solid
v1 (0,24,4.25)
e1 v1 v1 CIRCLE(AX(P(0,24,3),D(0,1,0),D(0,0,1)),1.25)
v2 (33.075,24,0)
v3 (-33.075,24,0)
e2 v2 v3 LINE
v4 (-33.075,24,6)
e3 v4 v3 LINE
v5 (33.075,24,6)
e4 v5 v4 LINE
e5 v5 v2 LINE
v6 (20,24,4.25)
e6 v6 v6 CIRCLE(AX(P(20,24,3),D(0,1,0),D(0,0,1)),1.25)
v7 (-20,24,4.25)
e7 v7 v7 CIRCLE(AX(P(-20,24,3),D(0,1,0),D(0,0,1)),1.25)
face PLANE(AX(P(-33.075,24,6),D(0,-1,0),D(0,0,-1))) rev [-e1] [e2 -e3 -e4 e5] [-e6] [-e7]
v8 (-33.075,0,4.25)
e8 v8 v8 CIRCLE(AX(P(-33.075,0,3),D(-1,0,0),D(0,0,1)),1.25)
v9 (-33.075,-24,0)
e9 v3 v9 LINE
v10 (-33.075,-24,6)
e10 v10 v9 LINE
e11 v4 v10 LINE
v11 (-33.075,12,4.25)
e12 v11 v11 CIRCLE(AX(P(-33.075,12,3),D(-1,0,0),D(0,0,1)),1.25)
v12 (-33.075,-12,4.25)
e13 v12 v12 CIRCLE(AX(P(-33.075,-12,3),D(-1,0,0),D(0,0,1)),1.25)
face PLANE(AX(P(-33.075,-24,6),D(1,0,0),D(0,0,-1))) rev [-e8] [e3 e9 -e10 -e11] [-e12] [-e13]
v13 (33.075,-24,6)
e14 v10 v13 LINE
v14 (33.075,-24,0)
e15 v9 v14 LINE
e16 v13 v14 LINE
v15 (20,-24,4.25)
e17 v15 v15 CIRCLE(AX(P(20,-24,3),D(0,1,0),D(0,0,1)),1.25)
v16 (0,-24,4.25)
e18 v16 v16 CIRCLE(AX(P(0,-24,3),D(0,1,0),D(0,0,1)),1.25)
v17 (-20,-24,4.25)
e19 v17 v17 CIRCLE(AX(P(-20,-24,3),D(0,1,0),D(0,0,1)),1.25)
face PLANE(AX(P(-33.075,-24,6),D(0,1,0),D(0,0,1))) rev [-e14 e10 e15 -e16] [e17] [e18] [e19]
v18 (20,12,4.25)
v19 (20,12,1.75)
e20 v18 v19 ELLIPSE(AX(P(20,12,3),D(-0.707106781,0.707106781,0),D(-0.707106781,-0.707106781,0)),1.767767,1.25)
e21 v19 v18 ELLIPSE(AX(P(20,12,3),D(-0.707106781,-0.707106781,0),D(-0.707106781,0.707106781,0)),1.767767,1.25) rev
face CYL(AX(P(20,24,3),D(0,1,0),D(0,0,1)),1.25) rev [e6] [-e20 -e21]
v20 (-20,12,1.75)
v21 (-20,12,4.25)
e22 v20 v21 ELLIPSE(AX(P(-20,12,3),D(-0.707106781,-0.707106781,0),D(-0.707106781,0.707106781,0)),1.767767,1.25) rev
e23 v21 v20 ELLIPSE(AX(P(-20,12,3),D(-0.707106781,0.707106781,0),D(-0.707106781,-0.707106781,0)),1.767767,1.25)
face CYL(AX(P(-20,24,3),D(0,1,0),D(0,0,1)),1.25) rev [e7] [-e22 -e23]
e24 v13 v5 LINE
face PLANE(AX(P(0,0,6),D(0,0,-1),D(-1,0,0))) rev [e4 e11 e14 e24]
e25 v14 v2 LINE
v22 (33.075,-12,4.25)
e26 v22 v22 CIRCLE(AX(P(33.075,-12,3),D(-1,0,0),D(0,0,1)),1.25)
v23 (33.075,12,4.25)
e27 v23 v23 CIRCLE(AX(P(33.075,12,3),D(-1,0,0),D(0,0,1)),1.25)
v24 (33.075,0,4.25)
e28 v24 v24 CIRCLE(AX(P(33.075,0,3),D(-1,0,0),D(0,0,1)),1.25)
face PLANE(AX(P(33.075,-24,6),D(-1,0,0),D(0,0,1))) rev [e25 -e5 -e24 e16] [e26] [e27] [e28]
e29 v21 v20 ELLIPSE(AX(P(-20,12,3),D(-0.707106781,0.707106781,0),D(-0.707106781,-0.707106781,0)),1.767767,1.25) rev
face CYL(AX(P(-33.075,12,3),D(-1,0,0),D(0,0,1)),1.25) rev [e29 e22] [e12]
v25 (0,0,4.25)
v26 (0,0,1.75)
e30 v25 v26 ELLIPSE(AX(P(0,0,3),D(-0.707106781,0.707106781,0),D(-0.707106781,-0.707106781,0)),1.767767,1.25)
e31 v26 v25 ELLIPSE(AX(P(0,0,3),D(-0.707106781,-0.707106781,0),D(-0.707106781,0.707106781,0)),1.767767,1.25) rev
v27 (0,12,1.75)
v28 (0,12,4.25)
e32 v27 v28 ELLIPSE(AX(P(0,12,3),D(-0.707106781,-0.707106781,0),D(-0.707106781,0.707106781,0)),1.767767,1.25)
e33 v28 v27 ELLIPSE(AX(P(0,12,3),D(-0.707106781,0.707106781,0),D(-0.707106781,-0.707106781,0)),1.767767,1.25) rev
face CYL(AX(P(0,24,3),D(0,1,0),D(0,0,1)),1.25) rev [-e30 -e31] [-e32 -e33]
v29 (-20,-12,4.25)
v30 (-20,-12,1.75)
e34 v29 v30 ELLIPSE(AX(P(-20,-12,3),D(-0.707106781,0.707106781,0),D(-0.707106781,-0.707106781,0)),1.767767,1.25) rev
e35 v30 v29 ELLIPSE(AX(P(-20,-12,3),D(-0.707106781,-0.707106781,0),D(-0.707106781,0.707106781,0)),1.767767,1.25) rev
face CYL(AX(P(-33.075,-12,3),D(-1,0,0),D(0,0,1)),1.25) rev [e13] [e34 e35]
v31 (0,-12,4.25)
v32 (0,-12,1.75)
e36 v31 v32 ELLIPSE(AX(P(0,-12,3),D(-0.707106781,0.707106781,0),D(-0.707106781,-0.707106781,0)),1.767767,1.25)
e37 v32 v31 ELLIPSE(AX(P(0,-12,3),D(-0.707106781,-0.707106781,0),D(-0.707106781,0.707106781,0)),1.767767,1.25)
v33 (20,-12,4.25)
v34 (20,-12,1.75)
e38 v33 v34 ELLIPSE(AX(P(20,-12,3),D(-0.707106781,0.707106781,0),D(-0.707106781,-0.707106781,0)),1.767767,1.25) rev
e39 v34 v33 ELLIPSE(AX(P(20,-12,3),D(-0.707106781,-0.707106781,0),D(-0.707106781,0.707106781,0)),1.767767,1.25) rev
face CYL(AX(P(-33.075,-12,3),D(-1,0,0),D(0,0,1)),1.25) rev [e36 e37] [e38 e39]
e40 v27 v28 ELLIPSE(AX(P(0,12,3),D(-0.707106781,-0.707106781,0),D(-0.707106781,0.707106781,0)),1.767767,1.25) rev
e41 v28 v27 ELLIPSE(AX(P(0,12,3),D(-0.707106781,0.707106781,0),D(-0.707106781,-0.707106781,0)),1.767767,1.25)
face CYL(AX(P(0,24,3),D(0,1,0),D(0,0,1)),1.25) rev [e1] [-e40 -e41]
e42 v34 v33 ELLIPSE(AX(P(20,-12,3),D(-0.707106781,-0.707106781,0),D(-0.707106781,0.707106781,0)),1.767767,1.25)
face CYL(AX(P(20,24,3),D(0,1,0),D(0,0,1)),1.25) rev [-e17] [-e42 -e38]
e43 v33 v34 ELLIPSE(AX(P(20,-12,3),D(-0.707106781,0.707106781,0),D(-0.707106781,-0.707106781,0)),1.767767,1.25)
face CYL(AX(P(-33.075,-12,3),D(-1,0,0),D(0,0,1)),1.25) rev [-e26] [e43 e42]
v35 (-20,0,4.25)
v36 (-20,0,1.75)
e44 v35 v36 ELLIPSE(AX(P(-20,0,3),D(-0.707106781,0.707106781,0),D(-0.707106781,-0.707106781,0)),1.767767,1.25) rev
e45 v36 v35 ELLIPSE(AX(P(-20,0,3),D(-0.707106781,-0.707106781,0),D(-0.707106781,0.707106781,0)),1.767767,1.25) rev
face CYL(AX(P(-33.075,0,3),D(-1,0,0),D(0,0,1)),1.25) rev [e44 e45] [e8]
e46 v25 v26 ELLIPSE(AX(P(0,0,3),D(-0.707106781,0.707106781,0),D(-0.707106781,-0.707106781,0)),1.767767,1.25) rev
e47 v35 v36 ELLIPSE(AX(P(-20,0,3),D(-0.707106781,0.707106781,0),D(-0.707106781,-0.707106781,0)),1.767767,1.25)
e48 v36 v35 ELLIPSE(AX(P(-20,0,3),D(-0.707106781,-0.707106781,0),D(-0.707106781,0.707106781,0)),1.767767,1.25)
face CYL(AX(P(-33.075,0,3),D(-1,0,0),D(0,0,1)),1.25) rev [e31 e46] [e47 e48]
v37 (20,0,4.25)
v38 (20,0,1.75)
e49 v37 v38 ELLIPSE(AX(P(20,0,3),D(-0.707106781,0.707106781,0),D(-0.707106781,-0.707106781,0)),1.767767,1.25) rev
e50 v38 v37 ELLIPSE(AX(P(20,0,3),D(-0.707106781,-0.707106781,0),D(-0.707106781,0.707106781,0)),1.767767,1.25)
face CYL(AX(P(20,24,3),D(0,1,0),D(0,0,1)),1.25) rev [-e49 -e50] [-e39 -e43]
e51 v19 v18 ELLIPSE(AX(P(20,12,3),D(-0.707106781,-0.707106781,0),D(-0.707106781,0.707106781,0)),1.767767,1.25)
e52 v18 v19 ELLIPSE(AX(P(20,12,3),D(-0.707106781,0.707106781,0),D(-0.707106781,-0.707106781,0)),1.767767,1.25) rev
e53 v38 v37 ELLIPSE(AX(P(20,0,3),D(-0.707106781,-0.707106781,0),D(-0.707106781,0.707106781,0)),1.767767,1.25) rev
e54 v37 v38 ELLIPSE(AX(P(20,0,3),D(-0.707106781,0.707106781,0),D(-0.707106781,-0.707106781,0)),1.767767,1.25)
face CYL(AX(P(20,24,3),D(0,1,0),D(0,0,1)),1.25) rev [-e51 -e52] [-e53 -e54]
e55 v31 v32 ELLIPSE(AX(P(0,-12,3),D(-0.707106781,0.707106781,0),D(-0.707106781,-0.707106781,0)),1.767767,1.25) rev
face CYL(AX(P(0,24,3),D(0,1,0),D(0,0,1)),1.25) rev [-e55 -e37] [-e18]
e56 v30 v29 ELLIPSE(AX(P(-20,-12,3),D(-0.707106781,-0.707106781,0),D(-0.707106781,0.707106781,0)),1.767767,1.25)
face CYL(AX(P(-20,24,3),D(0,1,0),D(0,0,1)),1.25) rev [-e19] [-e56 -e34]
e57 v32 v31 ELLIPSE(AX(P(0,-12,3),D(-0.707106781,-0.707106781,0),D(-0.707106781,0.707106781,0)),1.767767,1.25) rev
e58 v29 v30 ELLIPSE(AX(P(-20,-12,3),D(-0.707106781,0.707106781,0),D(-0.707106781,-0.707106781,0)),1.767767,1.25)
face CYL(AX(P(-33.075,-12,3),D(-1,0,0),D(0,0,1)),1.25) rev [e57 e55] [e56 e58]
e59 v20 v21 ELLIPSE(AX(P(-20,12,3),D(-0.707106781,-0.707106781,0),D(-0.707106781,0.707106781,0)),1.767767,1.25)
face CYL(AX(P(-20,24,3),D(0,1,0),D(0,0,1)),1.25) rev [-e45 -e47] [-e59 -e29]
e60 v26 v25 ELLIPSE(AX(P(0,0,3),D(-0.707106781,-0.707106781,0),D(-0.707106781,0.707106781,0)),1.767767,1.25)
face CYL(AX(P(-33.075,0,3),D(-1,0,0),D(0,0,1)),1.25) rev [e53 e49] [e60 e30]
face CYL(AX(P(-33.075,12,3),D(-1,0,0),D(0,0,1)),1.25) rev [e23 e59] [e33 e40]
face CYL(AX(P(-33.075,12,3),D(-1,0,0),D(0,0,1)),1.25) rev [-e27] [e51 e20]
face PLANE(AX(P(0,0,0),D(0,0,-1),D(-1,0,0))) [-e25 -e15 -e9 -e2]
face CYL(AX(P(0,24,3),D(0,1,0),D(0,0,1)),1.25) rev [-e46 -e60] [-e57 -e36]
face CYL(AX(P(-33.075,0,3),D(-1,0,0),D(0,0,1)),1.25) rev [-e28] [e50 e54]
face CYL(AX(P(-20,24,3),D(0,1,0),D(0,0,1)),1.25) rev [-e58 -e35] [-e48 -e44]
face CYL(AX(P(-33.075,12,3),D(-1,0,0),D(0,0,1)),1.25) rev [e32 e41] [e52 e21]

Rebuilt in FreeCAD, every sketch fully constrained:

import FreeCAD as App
import Part
import Sketcher
Q = App.Units.Quantity

doc = App.newDocument("Part")
params = doc.addObject("Spreadsheet::Sheet", "Params")
for row, (alias, value) in enumerate([
    ("sketch1_height", "48 mm"),
    ("sketch1_width", "66.15 mm"),
    ("pad1_length", "6 mm"),
    ("sketch2_diameter", "2.5 mm"),
    ("hole_diameter", "2.5 mm"),
    ("sketch3_diameter", "2.5 mm"),
    ("hole2_diameter", "2.5 mm"),
], start=1):
    params.set(f"A{row}", alias)
    params.set(f"B{row}", "=" + value)
    params.setAlias(f"B{row}", alias)

body = doc.addObject("PartDesign::Body", "Body")

# Sketch on XY plane
sketch1 = body.newObject("Sketcher::SketchObject", "Sketch")
sketch1.AttachmentSupport = (doc.getObject("XY_Plane"), [""])
sketch1.MapMode = "FlatFace"
sketch1.addGeometry([
    Part.LineSegment(App.Vector(-33.075, 24, 0), App.Vector(-33.075, -24, 0)),
    Part.LineSegment(App.Vector(-33.075, -24, 0), App.Vector(33.075, -24, 0)),
    Part.LineSegment(App.Vector(33.075, -24, 0), App.Vector(33.075, 24, 0)),
    Part.LineSegment(App.Vector(33.075, 24, 0), App.Vector(-33.075, 24, 0)),
], False)
sketch1.addConstraint([
    Sketcher.Constraint("Coincident", 0, 2, 1, 1),
    Sketcher.Constraint("Coincident", 1, 2, 2, 1),
    Sketcher.Constraint("Coincident", 2, 2, 3, 1),
    Sketcher.Constraint("Coincident", 3, 2, 0, 1),
    Sketcher.Constraint("Vertical", 0),
    Sketcher.Constraint("Horizontal", 1),
    Sketcher.Constraint("Vertical", 2),
    Sketcher.Constraint("Horizontal", 3),
    Sketcher.Constraint("Symmetric", 0, 2, 2, 2, -1, 1),
    Sketcher.Constraint("DistanceY", 0, 2, 0, 1, Q("48 mm")),
    Sketcher.Constraint("DistanceX", 1, 1, 1, 2, Q("66.15 mm")),
])
sketch1.setExpression("Constraints[9]", "Params.sketch1_height")
sketch1.setExpression("Constraints[10]", "Params.sketch1_width")
pad1 = body.newObject("PartDesign::Pad", "Pad")
pad1.Profile = sketch1
pad1.setExpression("Length", "Params.pad1_length")

# Sketch on YZ plane
sketch2 = body.newObject("Sketcher::SketchObject", "Sketch001")
sketch2.AttachmentSupport = (doc.getObject("YZ_Plane"), [""])
sketch2.MapMode = "FlatFace"
sketch2.AttachmentOffset = App.Placement(App.Vector(0, 0, -33.075), App.Rotation())
sketch2.addGeometry([
    Part.Circle(App.Vector(12, 3, 0), App.Vector(0, 0, 1), 1.25),
    Part.Circle(App.Vector(-12, 3, 0), App.Vector(0, 0, 1), 1.25),
    Part.Circle(App.Vector(0, 3, 0), App.Vector(0, 0, 1), 1.25),
], False)
sketch2.addConstraint([
    Sketcher.Constraint("Equal", 0, 1),
    Sketcher.Constraint("Equal", 1, 2),
    Sketcher.Constraint("Symmetric", 0, 3, 1, 3, -2),
    Sketcher.Constraint("PointOnObject", 2, 3, -2),
    Sketcher.Constraint("Horizontal", 1, 3, 2, 3),
    Sketcher.Constraint("Diameter", 0, Q("2.5 mm")),
    Sketcher.Constraint("DistanceX", -1, 1, 0, 3, Q("12 mm")),
    Sketcher.Constraint("DistanceY", -1, 1, 0, 3, Q("3 mm")),
])
sketch2.setExpression("Constraints[5]", "Params.sketch2_diameter")
doc.recompute()
hole = body.newObject("PartDesign::Hole", "Hole")
hole.Profile = sketch2
hole.ThreadType = "None"
hole.setExpression("Diameter", "Params.hole_diameter")
hole.DepthType = "ThroughAll"
hole.Reversed = True

# Sketch on XZ plane
sketch3 = body.newObject("Sketcher::SketchObject", "Sketch002")
sketch3.AttachmentSupport = (doc.getObject("XZ_Plane"), [""])
sketch3.MapMode = "FlatFace"
sketch3.AttachmentOffset = App.Placement(App.Vector(0, 0, -24), App.Rotation())
sketch3.addGeometry([
    Part.Circle(App.Vector(0, 3, 0), App.Vector(0, 0, 1), 1.25),
    Part.Circle(App.Vector(20, 3, 0), App.Vector(0, 0, 1), 1.25),
    Part.Circle(App.Vector(-20, 3, 0), App.Vector(0, 0, 1), 1.25),
], False)
sketch3.addConstraint([
    Sketcher.Constraint("Equal", 0, 1),
    Sketcher.Constraint("Equal", 1, 2),
    Sketcher.Constraint("Symmetric", 1, 3, 2, 3, -2),
    Sketcher.Constraint("PointOnObject", 0, 3, -2),
    Sketcher.Constraint("Horizontal", 0, 3, 1, 3),
    Sketcher.Constraint("Diameter", 0, Q("2.5 mm")),
    Sketcher.Constraint("DistanceY", -1, 1, 0, 3, Q("3 mm")),
    Sketcher.Constraint("DistanceX", -1, 1, 1, 3, Q("20 mm")),
])
sketch3.setExpression("Constraints[5]", "Params.sketch3_diameter")
doc.recompute()
hole2 = body.newObject("PartDesign::Hole", "Hole001")
hole2.Profile = sketch3
hole2.ThreadType = "None"
hole2.setExpression("Diameter", "Params.hole2_diameter")
hole2.DepthType = "ThroughAll"
hole2.Reversed = True

doc.recompute()
